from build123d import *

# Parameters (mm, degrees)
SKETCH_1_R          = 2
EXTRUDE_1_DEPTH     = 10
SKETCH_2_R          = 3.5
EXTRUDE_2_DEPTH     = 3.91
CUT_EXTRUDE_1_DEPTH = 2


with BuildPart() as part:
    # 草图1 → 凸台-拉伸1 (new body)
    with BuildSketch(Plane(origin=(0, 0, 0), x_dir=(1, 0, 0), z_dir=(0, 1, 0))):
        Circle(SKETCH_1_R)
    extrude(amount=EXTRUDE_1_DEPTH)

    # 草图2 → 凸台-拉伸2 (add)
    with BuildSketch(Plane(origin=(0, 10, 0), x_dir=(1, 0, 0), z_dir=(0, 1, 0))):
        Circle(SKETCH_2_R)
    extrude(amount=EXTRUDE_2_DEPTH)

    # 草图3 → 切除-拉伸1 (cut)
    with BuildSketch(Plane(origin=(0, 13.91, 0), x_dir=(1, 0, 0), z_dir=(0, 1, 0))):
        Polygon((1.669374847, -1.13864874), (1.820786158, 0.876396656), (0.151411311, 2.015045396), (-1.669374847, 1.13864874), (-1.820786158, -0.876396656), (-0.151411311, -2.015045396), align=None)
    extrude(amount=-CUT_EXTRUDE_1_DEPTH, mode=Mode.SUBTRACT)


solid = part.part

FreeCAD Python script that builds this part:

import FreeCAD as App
import Part
import Sketcher
from FreeCAD import Vector


def add_polygon(sketch, points):
    """Adds a closed chain of lines whose ends are joined by coincident constraints."""
    first, n = sketch.GeometryCount, len(points)
    for a, b in zip(points, points[1:] + points[:1]):
        sketch.addGeometry(Part.LineSegment(App.Vector(*a, 0), App.Vector(*b, 0)), False)
    for i in range(n):
        sketch.addConstraint(Sketcher.Constraint("Coincident", first + i, 2, first + (i + 1) % n, 1))

doc = App.newDocument("Part")
body = doc.addObject("PartDesign::Body", "Body")

sketch1 = doc.addObject("Sketcher::SketchObject", "Sketch")
body.addObject(sketch1)
sketch1.AttachmentSupport = (doc.XZ_Plane, [""])
sketch1.MapMode = "FlatFace"
sketch1.addGeometry(Part.Circle(Vector(0, 0, 0), Vector(0, 0, 1), 2), False)
sketch1.addConstraint([
    Sketcher.Constraint("Coincident", 0, 3, -1, 1),
    Sketcher.Constraint("Diameter", 0, 4.0),
])
pad1 = doc.addObject("PartDesign::Pad", "Pad")
body.addObject(pad1)
pad1.Profile = sketch1
pad1.Length = 10
pad1.Reversed = True

sketch2 = doc.addObject("Sketcher::SketchObject", "Sketch001")
body.addObject(sketch2)
sketch2.AttachmentSupport = (doc.XZ_Plane, [""])
sketch2.MapMode = "FlatFace"
sketch2.AttachmentOffset = App.Placement(Vector(0, 0, -10), App.Rotation())
sketch2.addGeometry(Part.Circle(Vector(0, 0, 0), Vector(0, 0, 1), 3.5), False)
sketch2.addConstraint([
    Sketcher.Constraint("Coincident", 0, 3, -1, 1),
    Sketcher.Constraint("Diameter", 0, 7.0),
])
pad2 = doc.addObject("PartDesign::Pad", "Pad001")
body.addObject(pad2)
pad2.Profile = sketch2
pad2.Length = 3.91
pad2.Reversed = True

sketch3 = doc.addObject("Sketcher::SketchObject", "Sketch002")
body.addObject(sketch3)
sketch3.AttachmentSupport = (doc.XZ_Plane, [""])
sketch3.MapMode = "FlatFace"
sketch3.AttachmentOffset = App.Placement(Vector(0, 0, -13.91), App.Rotation())
add_polygon(sketch3, [(1.669375, 1.138649), (1.820786, -0.876397), (0.151411, -2.015045), (-1.669375, -1.138649), (-1.820786, 0.876397), (-0.151411, 2.015045)])
sketch3.addConstraint([
    Sketcher.Constraint("Symmetric", 0, 2, 3, 2, -1, 1),
    Sketcher.Constraint("Symmetric", 1, 2, 4, 2, -1, 1),
    Sketcher.Constraint("Symmetric", 2, 2, 5, 2, -1, 1),
    Sketcher.Constraint("Equal", 0, 1),
    Sketcher.Constraint("Equal", 1, 2),
    Sketcher.Constraint("DistanceX", -1, 1, 1, 2, 0.151411),
    Sketcher.Constraint("DistanceY", 2, 2, -1, 1, 1.138649),
    Sketcher.Constraint("DistanceY", 1, 2, 0, 2, 1.138649),
    Sketcher.Constraint("DistanceX", 2, 2, 0, 2, 3.490161),
])
pocket1 = doc.addObject("PartDesign::Pocket", "Pocket")
body.addObject(pocket1)
pocket1.Profile = sketch3
pocket1.Length = 2
pocket1.Reversed = True

doc.recompute()
